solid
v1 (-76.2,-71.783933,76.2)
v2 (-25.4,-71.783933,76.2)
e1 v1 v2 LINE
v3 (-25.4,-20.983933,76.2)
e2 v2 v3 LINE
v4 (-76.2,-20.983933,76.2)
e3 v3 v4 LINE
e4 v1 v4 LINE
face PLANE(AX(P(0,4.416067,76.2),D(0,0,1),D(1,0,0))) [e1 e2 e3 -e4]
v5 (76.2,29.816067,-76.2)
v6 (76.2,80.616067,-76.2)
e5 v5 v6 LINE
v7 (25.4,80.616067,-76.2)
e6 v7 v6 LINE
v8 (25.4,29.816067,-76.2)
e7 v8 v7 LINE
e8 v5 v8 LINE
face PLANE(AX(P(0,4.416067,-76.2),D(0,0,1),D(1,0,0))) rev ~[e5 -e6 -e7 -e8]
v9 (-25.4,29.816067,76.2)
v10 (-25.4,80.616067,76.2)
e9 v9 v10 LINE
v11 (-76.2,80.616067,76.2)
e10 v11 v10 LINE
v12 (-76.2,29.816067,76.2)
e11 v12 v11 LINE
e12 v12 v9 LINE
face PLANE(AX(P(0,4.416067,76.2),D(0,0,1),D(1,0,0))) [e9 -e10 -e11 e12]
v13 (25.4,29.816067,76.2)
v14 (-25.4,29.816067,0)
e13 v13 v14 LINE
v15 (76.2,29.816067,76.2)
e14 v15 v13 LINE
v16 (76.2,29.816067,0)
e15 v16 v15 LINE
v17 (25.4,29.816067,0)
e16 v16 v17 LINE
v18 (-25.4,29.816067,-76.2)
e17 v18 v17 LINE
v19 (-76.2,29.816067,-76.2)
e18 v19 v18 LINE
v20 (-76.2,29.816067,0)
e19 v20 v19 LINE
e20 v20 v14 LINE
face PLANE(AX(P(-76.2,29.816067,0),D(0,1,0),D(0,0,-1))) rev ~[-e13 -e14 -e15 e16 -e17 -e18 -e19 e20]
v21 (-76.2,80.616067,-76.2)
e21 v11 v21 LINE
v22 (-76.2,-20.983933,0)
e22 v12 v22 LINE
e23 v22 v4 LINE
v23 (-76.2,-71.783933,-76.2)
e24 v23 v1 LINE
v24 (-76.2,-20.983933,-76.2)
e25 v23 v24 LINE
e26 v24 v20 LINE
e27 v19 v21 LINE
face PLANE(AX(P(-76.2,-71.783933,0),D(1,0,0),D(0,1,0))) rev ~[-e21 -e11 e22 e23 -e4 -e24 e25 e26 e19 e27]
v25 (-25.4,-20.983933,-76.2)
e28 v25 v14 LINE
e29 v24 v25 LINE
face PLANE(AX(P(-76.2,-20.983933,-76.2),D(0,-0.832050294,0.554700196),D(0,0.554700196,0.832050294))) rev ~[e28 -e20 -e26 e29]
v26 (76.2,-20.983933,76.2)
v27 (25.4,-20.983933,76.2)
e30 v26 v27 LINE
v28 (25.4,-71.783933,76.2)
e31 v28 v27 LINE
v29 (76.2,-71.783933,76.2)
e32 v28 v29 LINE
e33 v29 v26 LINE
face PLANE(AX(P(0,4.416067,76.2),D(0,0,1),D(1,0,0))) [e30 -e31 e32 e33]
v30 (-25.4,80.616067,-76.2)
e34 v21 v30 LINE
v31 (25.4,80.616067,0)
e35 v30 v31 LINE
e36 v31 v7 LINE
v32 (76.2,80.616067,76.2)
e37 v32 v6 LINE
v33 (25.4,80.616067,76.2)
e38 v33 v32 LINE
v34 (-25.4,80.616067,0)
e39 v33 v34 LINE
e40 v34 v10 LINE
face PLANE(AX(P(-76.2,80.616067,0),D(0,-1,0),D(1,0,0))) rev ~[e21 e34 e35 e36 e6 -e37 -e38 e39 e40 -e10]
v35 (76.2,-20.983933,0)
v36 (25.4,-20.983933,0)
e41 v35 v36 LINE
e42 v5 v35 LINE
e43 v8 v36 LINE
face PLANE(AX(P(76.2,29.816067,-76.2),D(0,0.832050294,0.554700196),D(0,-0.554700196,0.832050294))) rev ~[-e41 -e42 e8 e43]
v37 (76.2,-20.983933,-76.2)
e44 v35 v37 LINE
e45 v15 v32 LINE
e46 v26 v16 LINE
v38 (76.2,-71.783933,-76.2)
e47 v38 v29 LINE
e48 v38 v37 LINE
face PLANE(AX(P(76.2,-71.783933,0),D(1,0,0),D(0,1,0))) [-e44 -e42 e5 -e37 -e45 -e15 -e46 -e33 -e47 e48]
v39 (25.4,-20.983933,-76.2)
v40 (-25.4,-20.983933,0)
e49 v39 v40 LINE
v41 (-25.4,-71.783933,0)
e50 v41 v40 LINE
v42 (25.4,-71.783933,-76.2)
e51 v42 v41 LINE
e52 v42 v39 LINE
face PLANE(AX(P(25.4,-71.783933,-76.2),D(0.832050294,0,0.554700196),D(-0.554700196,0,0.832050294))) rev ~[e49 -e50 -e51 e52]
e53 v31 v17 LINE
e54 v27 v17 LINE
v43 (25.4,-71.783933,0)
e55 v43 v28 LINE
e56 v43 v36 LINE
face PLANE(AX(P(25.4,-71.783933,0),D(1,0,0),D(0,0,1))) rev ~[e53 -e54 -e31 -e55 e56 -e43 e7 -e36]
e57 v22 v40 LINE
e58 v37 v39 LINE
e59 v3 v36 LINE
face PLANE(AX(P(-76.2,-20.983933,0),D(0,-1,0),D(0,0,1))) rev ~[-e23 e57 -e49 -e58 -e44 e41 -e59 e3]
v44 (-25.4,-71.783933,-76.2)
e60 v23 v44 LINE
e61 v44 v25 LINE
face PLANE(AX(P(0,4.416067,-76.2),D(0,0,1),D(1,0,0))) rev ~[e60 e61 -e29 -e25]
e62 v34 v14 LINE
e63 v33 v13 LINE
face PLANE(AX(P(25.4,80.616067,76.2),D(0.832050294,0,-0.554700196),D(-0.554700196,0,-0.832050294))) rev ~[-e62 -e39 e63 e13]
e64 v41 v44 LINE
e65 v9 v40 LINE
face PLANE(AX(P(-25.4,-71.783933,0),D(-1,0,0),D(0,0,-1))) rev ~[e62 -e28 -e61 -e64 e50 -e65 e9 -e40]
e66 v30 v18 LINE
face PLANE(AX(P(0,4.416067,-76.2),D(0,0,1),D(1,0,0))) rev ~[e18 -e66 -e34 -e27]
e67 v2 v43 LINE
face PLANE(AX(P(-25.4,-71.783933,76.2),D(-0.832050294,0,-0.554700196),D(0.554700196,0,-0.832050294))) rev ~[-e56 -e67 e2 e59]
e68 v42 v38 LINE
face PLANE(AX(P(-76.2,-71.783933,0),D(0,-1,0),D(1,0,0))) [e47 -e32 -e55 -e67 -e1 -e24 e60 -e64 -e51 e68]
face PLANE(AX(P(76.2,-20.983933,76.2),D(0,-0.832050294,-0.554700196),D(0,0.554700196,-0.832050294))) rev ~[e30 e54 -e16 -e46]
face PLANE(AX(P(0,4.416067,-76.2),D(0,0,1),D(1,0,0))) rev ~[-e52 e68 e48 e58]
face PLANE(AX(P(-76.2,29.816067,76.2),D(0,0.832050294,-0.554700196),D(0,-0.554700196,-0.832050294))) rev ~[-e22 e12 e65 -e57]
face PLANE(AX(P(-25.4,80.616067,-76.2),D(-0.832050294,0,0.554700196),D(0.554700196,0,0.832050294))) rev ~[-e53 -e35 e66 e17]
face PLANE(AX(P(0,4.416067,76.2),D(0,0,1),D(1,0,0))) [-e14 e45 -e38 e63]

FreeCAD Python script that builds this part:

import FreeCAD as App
import Part
import Sketcher

V = App.Vector
Q = App.Units.Quantity

doc = App.newDocument("Part")
body = doc.addObject("PartDesign::Body", "Body")

sketch1 = doc.addObject("Sketcher::SketchObject", "Sketch")
body.addObject(sketch1)
sketch1.AttachmentSupport = (doc.XY_Plane, [""])
sketch1.MapMode = "FlatFace"
sketch1.addGeometry(Part.LineSegment(V(-76.2, 80.616067, 0), V(-76.2, -71.783933, 0)), False)
sketch1.addGeometry(Part.LineSegment(V(-76.2, -71.783933, 0), V(76.2, -71.783933, 0)), False)
sketch1.addGeometry(Part.LineSegment(V(76.2, -71.783933, 0), V(76.2, 80.616067, 0)), False)
sketch1.addGeometry(Part.LineSegment(V(76.2, 80.616067, 0), V(-76.2, 80.616067, 0)), False)
sketch1.addConstraint(Sketcher.Constraint("Coincident", 0, 2, 1, 1))
sketch1.addConstraint(Sketcher.Constraint("Coincident", 1, 2, 2, 1))
sketch1.addConstraint(Sketcher.Constraint("Coincident", 2, 2, 3, 1))
sketch1.addConstraint(Sketcher.Constraint("Coincident", 3, 2, 0, 1))
sketch1.addConstraint(Sketcher.Constraint("Vertical", 0))
sketch1.addConstraint(Sketcher.Constraint("Horizontal", 1))
sketch1.addConstraint(Sketcher.Constraint("Vertical", 2))
sketch1.addConstraint(Sketcher.Constraint("Horizontal", 3))
sketch1.addConstraint(Sketcher.Constraint("Equal", 3, 0))
sketch1.addConstraint(Sketcher.Constraint("DistanceX", 1, 1, 1, 2, Q("6 in")))
sketch1.addConstraint(Sketcher.Constraint("DistanceX", 0, 2, -1, 1, Q("3 in")))
sketch1.addConstraint(Sketcher.Constraint("DistanceY", 0, 2, -1, 1, 71.783933))
pad1 = doc.addObject("PartDesign::Pad", "Pad")
body.addObject(pad1)
pad1.Profile = sketch1
pad1.Length = Q("6 in")
pad1.Midplane = True

sketch2 = doc.addObject("Sketcher::SketchObject", "Sketch001")
body.addObject(sketch2)
sketch2.AttachmentSupport = (doc.XY_Plane, [""])
sketch2.MapMode = "FlatFace"
sketch2.AttachmentOffset = App.Placement(V(0, 0, 3 * 25.4), App.Rotation())
sketch2.addGeometry(Part.LineSegment(V(-25.4, -20.983933, 0), V(25.4, -20.983933, 0)), False)
sketch2.addGeometry(Part.LineSegment(V(25.4, -20.983933, 0), V(25.4, 29.816067, 0)), False)
sketch2.addGeometry(Part.LineSegment(V(25.4, 29.816067, 0), V(-25.4, 29.816067, 0)), False)
sketch2.addGeometry(Part.LineSegment(V(-25.4, 29.816067, 0), V(-25.4, -20.983933, 0)), False)
sketch2.addConstraint(Sketcher.Constraint("Coincident", 0, 2, 1, 1))
sketch2.addConstraint(Sketcher.Constraint("Coincident", 1, 2, 2, 1))
sketch2.addConstraint(Sketcher.Constraint("Coincident", 2, 2, 3, 1))
sketch2.addConstraint(Sketcher.Constraint("Coincident", 3, 2, 0, 1))
sketch2.addConstraint(Sketcher.Constraint("Horizontal", 0))
sketch2.addConstraint(Sketcher.Constraint("Vertical", 1))
sketch2.addConstraint(Sketcher.Constraint("Horizontal", 2))
sketch2.addConstraint(Sketcher.Constraint("Vertical", 3))
sketch2.addConstraint(Sketcher.Constraint("Equal", 2, 1))
sketch2.addConstraint(Sketcher.Constraint("DistanceX", 0, 1, 0, 2, Q("2 in")))
sketch2.addConstraint(Sketcher.Constraint("DistanceX", -1, 1, 0, 2, Q("1 in")))
sketch2.addConstraint(Sketcher.Constraint("DistanceY", 0, 2, -1, 1, 20.983933))
pocket1 = doc.addObject("PartDesign::Pocket", "Pocket")
body.addObject(pocket1)
pocket1.Profile = sketch2
pocket1.Type = "ThroughAll"

sketch3 = doc.addObject("Sketcher::SketchObject", "Sketch002")
body.addObject(sketch3)
sketch3.AttachmentSupport = (doc.XZ_Plane, [""])
sketch3.MapMode = "FlatFace"
sketch3.AttachmentOffset = App.Placement(V(0, 0, -80.616067), App.Rotation())
sketch3.addGeometry(Part.LineSegment(V(-25.4, -76.2, 0), V(25.4, 0, 0)), False)
sketch3.addGeometry(Part.LineSegment(V(25.4, 0, 0), V(25.4, -76.2, 0)), False)
sketch3.addGeometry(Part.LineSegment(V(25.4, -76.2, 0), V(-25.4, -76.2, 0)), False)
sketch3.addGeometry(Part.LineSegment(V(-25.4, 76.2, 0), V(25.4, 76.2, 0)), False)
sketch3.addGeometry(Part.LineSegment(V(25.4, 76.2, 0), V(-25.4, 0, 0)), False)
sketch3.addGeometry(Part.LineSegment(V(-25.4, 0, 0), V(-25.4, 76.2, 0)), False)
sketch3.addConstraint(Sketcher.Constraint("Coincident", 0, 2, 1, 1))
sketch3.addConstraint(Sketcher.Constraint("Coincident", 1, 2, 2, 1))
sketch3.addConstraint(Sketcher.Constraint("Coincident", 2, 2, 0, 1))
sketch3.addConstraint(Sketcher.Constraint("Coincident", 3, 2, 4, 1))
sketch3.addConstraint(Sketcher.Constraint("Coincident", 4, 2, 5, 1))
sketch3.addConstraint(Sketcher.Constraint("Coincident", 5, 2, 3, 1))
sketch3.addConstraint(Sketcher.Constraint("Vertical", 1))
sketch3.addConstraint(Sketcher.Constraint("Horizontal", 2))
sketch3.addConstraint(Sketcher.Constraint("Horizontal", 3))
sketch3.addConstraint(Sketcher.Constraint("Vertical", 5))
sketch3.addConstraint(Sketcher.Constraint("Symmetric", 2, 2, 3, 2, -1, 1))
sketch3.addConstraint(Sketcher.Constraint("Symmetric", 0, 2, 4, 2, -1, 1))
sketch3.addConstraint(Sketcher.Constraint("PointOnObject", 0, 2, -1))
sketch3.addConstraint(Sketcher.Constraint("Vertical", 1, 2, 3, 2))
sketch3.addConstraint(Sketcher.Constraint("DistanceX", 2, 2, 2, 1, Q("2 in")))
sketch3.addConstraint(Sketcher.Constraint("DistanceY", 1, 2, 1, 1, Q("3 in")))
pocket2 = doc.addObject("PartDesign::Pocket", "Pocket001")
body.addObject(pocket2)
pocket2.Profile = sketch3
pocket2.Length = Q("2 in")
pocket2.Reversed = True

sketch4 = doc.addObject("Sketcher::SketchObject", "Sketch003")
body.addObject(sketch4)
sketch4.AttachmentSupport = (doc.YZ_Plane, [""])
sketch4.MapMode = "FlatFace"
sketch4.AttachmentOffset = App.Placement(V(0, 0, -3 * 25.4), App.Rotation())
sketch4.addGeometry(Part.LineSegment(V(-20.983933, -76.2, 0), V(29.816067, 0, 0)), False)
sketch4.addGeometry(Part.LineSegment(V(29.816067, 0, 0), V(29.816067, -76.2, 0)), False)
sketch4.addGeometry(Part.LineSegment(V(29.816067, -76.2, 0), V(-20.983933, -76.2, 0)), False)
sketch4.addGeometry(Part.LineSegment(V(-20.983933, 76.2, 0), V(29.816067, 76.2, 0)), False)
sketch4.addGeometry(Part.LineSegment(V(29.816067, 76.2, 0), V(-20.983933, 0, 0)), False)
sketch4.addGeometry(Part.LineSegment(V(-20.983933, 0, 0), V(-20.983933, 76.2, 0)), False)
sketch4.addConstraint(Sketcher.Constraint("Coincident", 0, 2, 1, 1))
sketch4.addConstraint(Sketcher.Constraint("Coincident", 1, 2, 2, 1))
sketch4.addConstraint(Sketcher.Constraint("Coincident", 2, 2, 0, 1))
sketch4.addConstraint(Sketcher.Constraint("Coincident", 3, 2, 4, 1))
sketch4.addConstraint(Sketcher.Constraint("Coincident", 4, 2, 5, 1))
sketch4.addConstraint(Sketcher.Constraint("Coincident", 5, 2, 3, 1))
sketch4.addConstraint(Sketcher.Constraint("Vertical", 1))
sketch4.addConstraint(Sketcher.Constraint("Horizontal", 2))
sketch4.addConstraint(Sketcher.Constraint("Horizontal", 3))
sketch4.addConstraint(Sketcher.Constraint("Vertical", 5))
sketch4.addConstraint(Sketcher.Constraint("Symmetric", 1, 2, 3, 2, -1))
sketch4.addConstraint(Sketcher.Constraint("PointOnObject", 0, 2, -1))
sketch4.addConstraint(Sketcher.Constraint("PointOnObject", 4, 2, -1))
sketch4.addConstraint(Sketcher.Constraint("Parallel", 0, 4))
sketch4.addConstraint(Sketcher.Constraint("DistanceX", 2, 2, 2, 1, Q("2 in")))
sketch4.addConstraint(Sketcher.Constraint("DistanceY", 1, 2, 1, 1, Q("3 in")))
sketch4.addConstraint(Sketcher.Constraint("DistanceX", -1, 1, 0, 2, 29.816067))
pocket3 = doc.addObject("PartDesign::Pocket", "Pocket002")
body.addObject(pocket3)
pocket3.Profile = sketch4
pocket3.Length = Q("2 in")
pocket3.Reversed = True

sketch5 = doc.addObject("Sketcher::SketchObject", "Sketch004")
body.addObject(sketch5)
sketch5.AttachmentSupport = (doc.XZ_Plane, [""])
sketch5.MapMode = "FlatFace"
sketch5.AttachmentOffset = App.Placement(V(0, 0, 71.783933), App.Rotation())
sketch5.addGeometry(Part.LineSegment(V(25.4, -76.2, 0), V(-25.4, 0, 0)), False)
sketch5.addGeometry(Part.LineSegment(V(-25.4, 0, 0), V(-25.4, -76.2, 0)), False)
sketch5.addGeometry(Part.LineSegment(V(-25.4, -76.2, 0), V(25.4, -76.2, 0)), False)
sketch5.addGeometry(Part.LineSegment(V(25.4, 76.2, 0), V(-25.4, 76.2, 0)), False)
sketch5.addGeometry(Part.LineSegment(V(-25.4, 76.2, 0), V(25.4, 0, 0)), False)
sketch5.addGeometry(Part.LineSegment(V(25.4, 0, 0), V(25.4, 76.2, 0)), False)
sketch5.addConstraint(Sketcher.Constraint("Coincident", 0, 2, 1, 1))
sketch5.addConstraint(Sketcher.Constraint("Coincident", 1, 2, 2, 1))
sketch5.addConstraint(Sketcher.Constraint("Coincident", 2, 2, 0, 1))
sketch5.addConstraint(Sketcher.Constraint("Coincident", 3, 2, 4, 1))
sketch5.addConstraint(Sketcher.Constraint("Coincident", 4, 2, 5, 1))
sketch5.addConstraint(Sketcher.Constraint("Coincident", 5, 2, 3, 1))
sketch5.addConstraint(Sketcher.Constraint("Vertical", 1))
sketch5.addConstraint(Sketcher.Constraint("Horizontal", 2))
sketch5.addConstraint(Sketcher.Constraint("Horizontal", 3))
sketch5.addConstraint(Sketcher.Constraint("Vertical", 5))
sketch5.addConstraint(Sketcher.Constraint("Symmetric", 2, 2, 3, 2, -1, 1))
sketch5.addConstraint(Sketcher.Constraint("Symmetric", 0, 2, 4, 2, -1, 1))
sketch5.addConstraint(Sketcher.Constraint("PointOnObject", 0, 2, -1))
sketch5.addConstraint(Sketcher.Constraint("Vertical", 1, 2, 3, 2))
sketch5.addConstraint(Sketcher.Constraint("DistanceX", 2, 1, 2, 2, Q("2 in")))
sketch5.addConstraint(Sketcher.Constraint("DistanceY", 1, 2, 1, 1, Q("3 in")))
pocket4 = doc.addObject("PartDesign::Pocket", "Pocket003")
body.addObject(pocket4)
pocket4.Profile = sketch5
pocket4.Length = Q("2 in")

sketch6 = doc.addObject("Sketcher::SketchObject", "Sketch005")
body.addObject(sketch6)
sketch6.AttachmentSupport = (doc.YZ_Plane, [""])
sketch6.MapMode = "FlatFace"
sketch6.AttachmentOffset = App.Placement(V(0, 0, 3 * 25.4), App.Rotation())
sketch6.addGeometry(Part.LineSegment(V(29.816067, -76.2, 0), V(-20.983933, 0, 0)), False)
sketch6.addGeometry(Part.LineSegment(V(-20.983933, 0, 0), V(-20.983933, -76.2, 0)), False)
sketch6.addGeometry(Part.LineSegment(V(-20.983933, -76.2, 0), V(29.816067, -76.2, 0)), False)
sketch6.addGeometry(Part.LineSegment(V(29.816067, 76.2, 0), V(-20.983933, 76.2, 0)), False)
sketch6.addGeometry(Part.LineSegment(V(-20.983933, 76.2, 0), V(29.816067, 0, 0)), False)
sketch6.addGeometry(Part.LineSegment(V(29.816067, 0, 0), V(29.816067, 76.2, 0)), False)
sketch6.addConstraint(Sketcher.Constraint("Coincident", 0, 2, 1, 1))
sketch6.addConstraint(Sketcher.Constraint("Coincident", 1, 2, 2, 1))
sketch6.addConstraint(Sketcher.Constraint("Coincident", 2, 2, 0, 1))
sketch6.addConstraint(Sketcher.Constraint("Coincident", 3, 2, 4, 1))
sketch6.addConstraint(Sketcher.Constraint("Coincident", 4, 2, 5, 1))
sketch6.addConstraint(Sketcher.Constraint("Coincident", 5, 2, 3, 1))
sketch6.addConstraint(Sketcher.Constraint("Vertical", 1))
sketch6.addConstraint(Sketcher.Constraint("Horizontal", 2))
sketch6.addConstraint(Sketcher.Constraint("Horizontal", 3))
sketch6.addConstraint(Sketcher.Constraint("Vertical", 5))
sketch6.addConstraint(Sketcher.Constraint("Symmetric", 1, 2, 3, 2, -1))
sketch6.addConstraint(Sketcher.Constraint("PointOnObject", 0, 2, -1))
sketch6.addConstraint(Sketcher.Constraint("PointOnObject", 4, 2, -1))
sketch6.addConstraint(Sketcher.Constraint("Parallel", 0, 4))
sketch6.addConstraint(Sketcher.Constraint("DistanceX", 2, 1, 2, 2, Q("2 in")))
sketch6.addConstraint(Sketcher.Constraint("DistanceY", 1, 2, 1, 1, Q("3 in")))
sketch6.addConstraint(Sketcher.Constraint("DistanceX", 0, 2, -1, 1, 20.983933))
pocket5 = doc.addObject("PartDesign::Pocket", "Pocket004")
body.addObject(pocket5)
pocket5.Profile = sketch6
pocket5.Length = Q("2 in")

doc.recompute()
